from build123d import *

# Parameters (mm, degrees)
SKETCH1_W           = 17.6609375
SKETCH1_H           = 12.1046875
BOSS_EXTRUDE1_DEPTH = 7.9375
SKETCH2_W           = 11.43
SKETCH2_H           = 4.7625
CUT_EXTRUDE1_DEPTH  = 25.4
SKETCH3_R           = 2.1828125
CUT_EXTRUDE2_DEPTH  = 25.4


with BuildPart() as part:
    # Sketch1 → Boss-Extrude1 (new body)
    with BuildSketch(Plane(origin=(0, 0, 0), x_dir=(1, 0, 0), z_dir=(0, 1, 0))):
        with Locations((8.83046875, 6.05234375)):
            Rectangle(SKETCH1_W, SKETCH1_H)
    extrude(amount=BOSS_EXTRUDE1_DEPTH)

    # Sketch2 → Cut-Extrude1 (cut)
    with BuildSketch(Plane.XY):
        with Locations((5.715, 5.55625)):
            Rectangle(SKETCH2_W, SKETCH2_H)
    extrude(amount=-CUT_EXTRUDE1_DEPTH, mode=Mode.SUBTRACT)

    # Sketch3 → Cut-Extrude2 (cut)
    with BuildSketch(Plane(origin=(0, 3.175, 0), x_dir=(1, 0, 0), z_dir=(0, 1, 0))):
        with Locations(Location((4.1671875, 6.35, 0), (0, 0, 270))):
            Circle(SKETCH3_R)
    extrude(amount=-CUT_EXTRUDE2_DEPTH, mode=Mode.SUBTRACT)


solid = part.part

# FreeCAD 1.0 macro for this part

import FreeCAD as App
import Part
import Sketcher
Q = App.Units.Quantity

doc = App.newDocument("Part")
body = doc.addObject("PartDesign::Body", "Body")

# Sketch on XZ plane
sketch1 = doc.addObject("Sketcher::SketchObject", "Sketch")
body.addObject(sketch1)
sketch1.AttachmentSupport = (doc.XZ_Plane, [""])
sketch1.MapMode = "FlatFace"
sketch1.addGeometry(Part.LineSegment(App.Vector(0, -12, 0), App.Vector(0, 0, 0)), False)
sketch1.addGeometry(Part.LineSegment(App.Vector(0, 0, 0), App.Vector(18, 0, 0)), False)
sketch1.addGeometry(Part.LineSegment(App.Vector(18, 0, 0), App.Vector(18, -12, 0)), False)
sketch1.addGeometry(Part.LineSegment(App.Vector(18, -12, 0), App.Vector(0, -12, 0)), False)
sketch1.addConstraint(Sketcher.Constraint("Coincident", 0, 2, 1, 1))
sketch1.addConstraint(Sketcher.Constraint("Coincident", 1, 2, 2, 1))
sketch1.addConstraint(Sketcher.Constraint("Coincident", 2, 2, 3, 1))
sketch1.addConstraint(Sketcher.Constraint("Coincident", 3, 2, 0, 1))
sketch1.addConstraint(Sketcher.Constraint("Vertical", 0))
sketch1.addConstraint(Sketcher.Constraint("Horizontal", 1))
sketch1.addConstraint(Sketcher.Constraint("Vertical", 2))
sketch1.addConstraint(Sketcher.Constraint("Horizontal", 3))
sketch1.addConstraint(Sketcher.Constraint("Coincident", 0, 2, -1, 1))
sketch1.addConstraint(Sketcher.Constraint("DistanceX", 1, 1, 1, 2, 17.660937))
sketch1.addConstraint(Sketcher.Constraint("DistanceY", 0, 1, 0, 2, 12.104688))
pad1 = doc.addObject("PartDesign::Pad", "Pad")
body.addObject(pad1)
pad1.Profile = sketch1
pad1.Length = Q("0.3125 in")
pad1.Reversed = True

# Sketch on XY plane
sketch2 = doc.addObject("Sketcher::SketchObject", "Sketch001")
body.addObject(sketch2)
sketch2.AttachmentSupport = (doc.XY_Plane, [""])
sketch2.MapMode = "FlatFace"
sketch2.addGeometry(Part.LineSegment(App.Vector(0, 7.9, 0), App.Vector(0, 3.2, 0)), False)
sketch2.addGeometry(Part.LineSegment(App.Vector(0, 3.2, 0), App.Vector(11.4, 3.2, 0)), False)
sketch2.addGeometry(Part.LineSegment(App.Vector(11.4, 3.2, 0), App.Vector(11.4, 7.9, 0)), False)
sketch2.addGeometry(Part.LineSegment(App.Vector(11.4, 7.9, 0), App.Vector(0, 7.9, 0)), False)
sketch2.addConstraint(Sketcher.Constraint("Coincident", 0, 2, 1, 1))
sketch2.addConstraint(Sketcher.Constraint("Coincident", 1, 2, 2, 1))
sketch2.addConstraint(Sketcher.Constraint("Coincident", 2, 2, 3, 1))
sketch2.addConstraint(Sketcher.Constraint("Coincident", 3, 2, 0, 1))
sketch2.addConstraint(Sketcher.Constraint("Vertical", 0))
sketch2.addConstraint(Sketcher.Constraint("Horizontal", 1))
sketch2.addConstraint(Sketcher.Constraint("Vertical", 2))
sketch2.addConstraint(Sketcher.Constraint("Horizontal", 3))
sketch2.addConstraint(Sketcher.Constraint("PointOnObject", 0, 2, -2))
sketch2.addConstraint(Sketcher.Constraint("DistanceX", 1, 1, 1, 2, Q("0.45 in")))
sketch2.addConstraint(Sketcher.Constraint("DistanceY", 0, 2, 0, 1, Q("0.1875 in")))
sketch2.addConstraint(Sketcher.Constraint("DistanceY", -1, 1, 0, 2, Q("0.125 in")))
pocket1 = doc.addObject("PartDesign::Pocket", "Pocket")
body.addObject(pocket1)
pocket1.Profile = sketch2
pocket1.Length = Q("1 in")

# Sketch on XZ plane
sketch3 = doc.addObject("Sketcher::SketchObject", "Sketch002")
body.addObject(sketch3)
sketch3.AttachmentSupport = (doc.XZ_Plane, [""])
sketch3.MapMode = "FlatFace"
sketch3.AttachmentOffset = App.Placement(App.Vector(0, 0, -0.125 * 25.4), App.Rotation())
sketch3.addGeometry(Part.Circle(App.Vector(4.2, -6.3, 0), App.Vector(0, 0, 1), 2.2), False)
sketch3.addConstraint(Sketcher.Constraint("Diameter", 0, Q("0.171875 in")))
sketch3.addConstraint(Sketcher.Constraint("DistanceY", 0, 3, -1, 1, Q("0.25 in")))
sketch3.addConstraint(Sketcher.Constraint("DistanceX", -1, 1, 0, 3, 4.167187))
pocket2 = doc.addObject("PartDesign::Pocket", "Pocket001")
body.addObject(pocket2)
pocket2.Profile = sketch3
pocket2.Length = Q("1 in")
pocket2.Reversed = True

doc.recompute()
